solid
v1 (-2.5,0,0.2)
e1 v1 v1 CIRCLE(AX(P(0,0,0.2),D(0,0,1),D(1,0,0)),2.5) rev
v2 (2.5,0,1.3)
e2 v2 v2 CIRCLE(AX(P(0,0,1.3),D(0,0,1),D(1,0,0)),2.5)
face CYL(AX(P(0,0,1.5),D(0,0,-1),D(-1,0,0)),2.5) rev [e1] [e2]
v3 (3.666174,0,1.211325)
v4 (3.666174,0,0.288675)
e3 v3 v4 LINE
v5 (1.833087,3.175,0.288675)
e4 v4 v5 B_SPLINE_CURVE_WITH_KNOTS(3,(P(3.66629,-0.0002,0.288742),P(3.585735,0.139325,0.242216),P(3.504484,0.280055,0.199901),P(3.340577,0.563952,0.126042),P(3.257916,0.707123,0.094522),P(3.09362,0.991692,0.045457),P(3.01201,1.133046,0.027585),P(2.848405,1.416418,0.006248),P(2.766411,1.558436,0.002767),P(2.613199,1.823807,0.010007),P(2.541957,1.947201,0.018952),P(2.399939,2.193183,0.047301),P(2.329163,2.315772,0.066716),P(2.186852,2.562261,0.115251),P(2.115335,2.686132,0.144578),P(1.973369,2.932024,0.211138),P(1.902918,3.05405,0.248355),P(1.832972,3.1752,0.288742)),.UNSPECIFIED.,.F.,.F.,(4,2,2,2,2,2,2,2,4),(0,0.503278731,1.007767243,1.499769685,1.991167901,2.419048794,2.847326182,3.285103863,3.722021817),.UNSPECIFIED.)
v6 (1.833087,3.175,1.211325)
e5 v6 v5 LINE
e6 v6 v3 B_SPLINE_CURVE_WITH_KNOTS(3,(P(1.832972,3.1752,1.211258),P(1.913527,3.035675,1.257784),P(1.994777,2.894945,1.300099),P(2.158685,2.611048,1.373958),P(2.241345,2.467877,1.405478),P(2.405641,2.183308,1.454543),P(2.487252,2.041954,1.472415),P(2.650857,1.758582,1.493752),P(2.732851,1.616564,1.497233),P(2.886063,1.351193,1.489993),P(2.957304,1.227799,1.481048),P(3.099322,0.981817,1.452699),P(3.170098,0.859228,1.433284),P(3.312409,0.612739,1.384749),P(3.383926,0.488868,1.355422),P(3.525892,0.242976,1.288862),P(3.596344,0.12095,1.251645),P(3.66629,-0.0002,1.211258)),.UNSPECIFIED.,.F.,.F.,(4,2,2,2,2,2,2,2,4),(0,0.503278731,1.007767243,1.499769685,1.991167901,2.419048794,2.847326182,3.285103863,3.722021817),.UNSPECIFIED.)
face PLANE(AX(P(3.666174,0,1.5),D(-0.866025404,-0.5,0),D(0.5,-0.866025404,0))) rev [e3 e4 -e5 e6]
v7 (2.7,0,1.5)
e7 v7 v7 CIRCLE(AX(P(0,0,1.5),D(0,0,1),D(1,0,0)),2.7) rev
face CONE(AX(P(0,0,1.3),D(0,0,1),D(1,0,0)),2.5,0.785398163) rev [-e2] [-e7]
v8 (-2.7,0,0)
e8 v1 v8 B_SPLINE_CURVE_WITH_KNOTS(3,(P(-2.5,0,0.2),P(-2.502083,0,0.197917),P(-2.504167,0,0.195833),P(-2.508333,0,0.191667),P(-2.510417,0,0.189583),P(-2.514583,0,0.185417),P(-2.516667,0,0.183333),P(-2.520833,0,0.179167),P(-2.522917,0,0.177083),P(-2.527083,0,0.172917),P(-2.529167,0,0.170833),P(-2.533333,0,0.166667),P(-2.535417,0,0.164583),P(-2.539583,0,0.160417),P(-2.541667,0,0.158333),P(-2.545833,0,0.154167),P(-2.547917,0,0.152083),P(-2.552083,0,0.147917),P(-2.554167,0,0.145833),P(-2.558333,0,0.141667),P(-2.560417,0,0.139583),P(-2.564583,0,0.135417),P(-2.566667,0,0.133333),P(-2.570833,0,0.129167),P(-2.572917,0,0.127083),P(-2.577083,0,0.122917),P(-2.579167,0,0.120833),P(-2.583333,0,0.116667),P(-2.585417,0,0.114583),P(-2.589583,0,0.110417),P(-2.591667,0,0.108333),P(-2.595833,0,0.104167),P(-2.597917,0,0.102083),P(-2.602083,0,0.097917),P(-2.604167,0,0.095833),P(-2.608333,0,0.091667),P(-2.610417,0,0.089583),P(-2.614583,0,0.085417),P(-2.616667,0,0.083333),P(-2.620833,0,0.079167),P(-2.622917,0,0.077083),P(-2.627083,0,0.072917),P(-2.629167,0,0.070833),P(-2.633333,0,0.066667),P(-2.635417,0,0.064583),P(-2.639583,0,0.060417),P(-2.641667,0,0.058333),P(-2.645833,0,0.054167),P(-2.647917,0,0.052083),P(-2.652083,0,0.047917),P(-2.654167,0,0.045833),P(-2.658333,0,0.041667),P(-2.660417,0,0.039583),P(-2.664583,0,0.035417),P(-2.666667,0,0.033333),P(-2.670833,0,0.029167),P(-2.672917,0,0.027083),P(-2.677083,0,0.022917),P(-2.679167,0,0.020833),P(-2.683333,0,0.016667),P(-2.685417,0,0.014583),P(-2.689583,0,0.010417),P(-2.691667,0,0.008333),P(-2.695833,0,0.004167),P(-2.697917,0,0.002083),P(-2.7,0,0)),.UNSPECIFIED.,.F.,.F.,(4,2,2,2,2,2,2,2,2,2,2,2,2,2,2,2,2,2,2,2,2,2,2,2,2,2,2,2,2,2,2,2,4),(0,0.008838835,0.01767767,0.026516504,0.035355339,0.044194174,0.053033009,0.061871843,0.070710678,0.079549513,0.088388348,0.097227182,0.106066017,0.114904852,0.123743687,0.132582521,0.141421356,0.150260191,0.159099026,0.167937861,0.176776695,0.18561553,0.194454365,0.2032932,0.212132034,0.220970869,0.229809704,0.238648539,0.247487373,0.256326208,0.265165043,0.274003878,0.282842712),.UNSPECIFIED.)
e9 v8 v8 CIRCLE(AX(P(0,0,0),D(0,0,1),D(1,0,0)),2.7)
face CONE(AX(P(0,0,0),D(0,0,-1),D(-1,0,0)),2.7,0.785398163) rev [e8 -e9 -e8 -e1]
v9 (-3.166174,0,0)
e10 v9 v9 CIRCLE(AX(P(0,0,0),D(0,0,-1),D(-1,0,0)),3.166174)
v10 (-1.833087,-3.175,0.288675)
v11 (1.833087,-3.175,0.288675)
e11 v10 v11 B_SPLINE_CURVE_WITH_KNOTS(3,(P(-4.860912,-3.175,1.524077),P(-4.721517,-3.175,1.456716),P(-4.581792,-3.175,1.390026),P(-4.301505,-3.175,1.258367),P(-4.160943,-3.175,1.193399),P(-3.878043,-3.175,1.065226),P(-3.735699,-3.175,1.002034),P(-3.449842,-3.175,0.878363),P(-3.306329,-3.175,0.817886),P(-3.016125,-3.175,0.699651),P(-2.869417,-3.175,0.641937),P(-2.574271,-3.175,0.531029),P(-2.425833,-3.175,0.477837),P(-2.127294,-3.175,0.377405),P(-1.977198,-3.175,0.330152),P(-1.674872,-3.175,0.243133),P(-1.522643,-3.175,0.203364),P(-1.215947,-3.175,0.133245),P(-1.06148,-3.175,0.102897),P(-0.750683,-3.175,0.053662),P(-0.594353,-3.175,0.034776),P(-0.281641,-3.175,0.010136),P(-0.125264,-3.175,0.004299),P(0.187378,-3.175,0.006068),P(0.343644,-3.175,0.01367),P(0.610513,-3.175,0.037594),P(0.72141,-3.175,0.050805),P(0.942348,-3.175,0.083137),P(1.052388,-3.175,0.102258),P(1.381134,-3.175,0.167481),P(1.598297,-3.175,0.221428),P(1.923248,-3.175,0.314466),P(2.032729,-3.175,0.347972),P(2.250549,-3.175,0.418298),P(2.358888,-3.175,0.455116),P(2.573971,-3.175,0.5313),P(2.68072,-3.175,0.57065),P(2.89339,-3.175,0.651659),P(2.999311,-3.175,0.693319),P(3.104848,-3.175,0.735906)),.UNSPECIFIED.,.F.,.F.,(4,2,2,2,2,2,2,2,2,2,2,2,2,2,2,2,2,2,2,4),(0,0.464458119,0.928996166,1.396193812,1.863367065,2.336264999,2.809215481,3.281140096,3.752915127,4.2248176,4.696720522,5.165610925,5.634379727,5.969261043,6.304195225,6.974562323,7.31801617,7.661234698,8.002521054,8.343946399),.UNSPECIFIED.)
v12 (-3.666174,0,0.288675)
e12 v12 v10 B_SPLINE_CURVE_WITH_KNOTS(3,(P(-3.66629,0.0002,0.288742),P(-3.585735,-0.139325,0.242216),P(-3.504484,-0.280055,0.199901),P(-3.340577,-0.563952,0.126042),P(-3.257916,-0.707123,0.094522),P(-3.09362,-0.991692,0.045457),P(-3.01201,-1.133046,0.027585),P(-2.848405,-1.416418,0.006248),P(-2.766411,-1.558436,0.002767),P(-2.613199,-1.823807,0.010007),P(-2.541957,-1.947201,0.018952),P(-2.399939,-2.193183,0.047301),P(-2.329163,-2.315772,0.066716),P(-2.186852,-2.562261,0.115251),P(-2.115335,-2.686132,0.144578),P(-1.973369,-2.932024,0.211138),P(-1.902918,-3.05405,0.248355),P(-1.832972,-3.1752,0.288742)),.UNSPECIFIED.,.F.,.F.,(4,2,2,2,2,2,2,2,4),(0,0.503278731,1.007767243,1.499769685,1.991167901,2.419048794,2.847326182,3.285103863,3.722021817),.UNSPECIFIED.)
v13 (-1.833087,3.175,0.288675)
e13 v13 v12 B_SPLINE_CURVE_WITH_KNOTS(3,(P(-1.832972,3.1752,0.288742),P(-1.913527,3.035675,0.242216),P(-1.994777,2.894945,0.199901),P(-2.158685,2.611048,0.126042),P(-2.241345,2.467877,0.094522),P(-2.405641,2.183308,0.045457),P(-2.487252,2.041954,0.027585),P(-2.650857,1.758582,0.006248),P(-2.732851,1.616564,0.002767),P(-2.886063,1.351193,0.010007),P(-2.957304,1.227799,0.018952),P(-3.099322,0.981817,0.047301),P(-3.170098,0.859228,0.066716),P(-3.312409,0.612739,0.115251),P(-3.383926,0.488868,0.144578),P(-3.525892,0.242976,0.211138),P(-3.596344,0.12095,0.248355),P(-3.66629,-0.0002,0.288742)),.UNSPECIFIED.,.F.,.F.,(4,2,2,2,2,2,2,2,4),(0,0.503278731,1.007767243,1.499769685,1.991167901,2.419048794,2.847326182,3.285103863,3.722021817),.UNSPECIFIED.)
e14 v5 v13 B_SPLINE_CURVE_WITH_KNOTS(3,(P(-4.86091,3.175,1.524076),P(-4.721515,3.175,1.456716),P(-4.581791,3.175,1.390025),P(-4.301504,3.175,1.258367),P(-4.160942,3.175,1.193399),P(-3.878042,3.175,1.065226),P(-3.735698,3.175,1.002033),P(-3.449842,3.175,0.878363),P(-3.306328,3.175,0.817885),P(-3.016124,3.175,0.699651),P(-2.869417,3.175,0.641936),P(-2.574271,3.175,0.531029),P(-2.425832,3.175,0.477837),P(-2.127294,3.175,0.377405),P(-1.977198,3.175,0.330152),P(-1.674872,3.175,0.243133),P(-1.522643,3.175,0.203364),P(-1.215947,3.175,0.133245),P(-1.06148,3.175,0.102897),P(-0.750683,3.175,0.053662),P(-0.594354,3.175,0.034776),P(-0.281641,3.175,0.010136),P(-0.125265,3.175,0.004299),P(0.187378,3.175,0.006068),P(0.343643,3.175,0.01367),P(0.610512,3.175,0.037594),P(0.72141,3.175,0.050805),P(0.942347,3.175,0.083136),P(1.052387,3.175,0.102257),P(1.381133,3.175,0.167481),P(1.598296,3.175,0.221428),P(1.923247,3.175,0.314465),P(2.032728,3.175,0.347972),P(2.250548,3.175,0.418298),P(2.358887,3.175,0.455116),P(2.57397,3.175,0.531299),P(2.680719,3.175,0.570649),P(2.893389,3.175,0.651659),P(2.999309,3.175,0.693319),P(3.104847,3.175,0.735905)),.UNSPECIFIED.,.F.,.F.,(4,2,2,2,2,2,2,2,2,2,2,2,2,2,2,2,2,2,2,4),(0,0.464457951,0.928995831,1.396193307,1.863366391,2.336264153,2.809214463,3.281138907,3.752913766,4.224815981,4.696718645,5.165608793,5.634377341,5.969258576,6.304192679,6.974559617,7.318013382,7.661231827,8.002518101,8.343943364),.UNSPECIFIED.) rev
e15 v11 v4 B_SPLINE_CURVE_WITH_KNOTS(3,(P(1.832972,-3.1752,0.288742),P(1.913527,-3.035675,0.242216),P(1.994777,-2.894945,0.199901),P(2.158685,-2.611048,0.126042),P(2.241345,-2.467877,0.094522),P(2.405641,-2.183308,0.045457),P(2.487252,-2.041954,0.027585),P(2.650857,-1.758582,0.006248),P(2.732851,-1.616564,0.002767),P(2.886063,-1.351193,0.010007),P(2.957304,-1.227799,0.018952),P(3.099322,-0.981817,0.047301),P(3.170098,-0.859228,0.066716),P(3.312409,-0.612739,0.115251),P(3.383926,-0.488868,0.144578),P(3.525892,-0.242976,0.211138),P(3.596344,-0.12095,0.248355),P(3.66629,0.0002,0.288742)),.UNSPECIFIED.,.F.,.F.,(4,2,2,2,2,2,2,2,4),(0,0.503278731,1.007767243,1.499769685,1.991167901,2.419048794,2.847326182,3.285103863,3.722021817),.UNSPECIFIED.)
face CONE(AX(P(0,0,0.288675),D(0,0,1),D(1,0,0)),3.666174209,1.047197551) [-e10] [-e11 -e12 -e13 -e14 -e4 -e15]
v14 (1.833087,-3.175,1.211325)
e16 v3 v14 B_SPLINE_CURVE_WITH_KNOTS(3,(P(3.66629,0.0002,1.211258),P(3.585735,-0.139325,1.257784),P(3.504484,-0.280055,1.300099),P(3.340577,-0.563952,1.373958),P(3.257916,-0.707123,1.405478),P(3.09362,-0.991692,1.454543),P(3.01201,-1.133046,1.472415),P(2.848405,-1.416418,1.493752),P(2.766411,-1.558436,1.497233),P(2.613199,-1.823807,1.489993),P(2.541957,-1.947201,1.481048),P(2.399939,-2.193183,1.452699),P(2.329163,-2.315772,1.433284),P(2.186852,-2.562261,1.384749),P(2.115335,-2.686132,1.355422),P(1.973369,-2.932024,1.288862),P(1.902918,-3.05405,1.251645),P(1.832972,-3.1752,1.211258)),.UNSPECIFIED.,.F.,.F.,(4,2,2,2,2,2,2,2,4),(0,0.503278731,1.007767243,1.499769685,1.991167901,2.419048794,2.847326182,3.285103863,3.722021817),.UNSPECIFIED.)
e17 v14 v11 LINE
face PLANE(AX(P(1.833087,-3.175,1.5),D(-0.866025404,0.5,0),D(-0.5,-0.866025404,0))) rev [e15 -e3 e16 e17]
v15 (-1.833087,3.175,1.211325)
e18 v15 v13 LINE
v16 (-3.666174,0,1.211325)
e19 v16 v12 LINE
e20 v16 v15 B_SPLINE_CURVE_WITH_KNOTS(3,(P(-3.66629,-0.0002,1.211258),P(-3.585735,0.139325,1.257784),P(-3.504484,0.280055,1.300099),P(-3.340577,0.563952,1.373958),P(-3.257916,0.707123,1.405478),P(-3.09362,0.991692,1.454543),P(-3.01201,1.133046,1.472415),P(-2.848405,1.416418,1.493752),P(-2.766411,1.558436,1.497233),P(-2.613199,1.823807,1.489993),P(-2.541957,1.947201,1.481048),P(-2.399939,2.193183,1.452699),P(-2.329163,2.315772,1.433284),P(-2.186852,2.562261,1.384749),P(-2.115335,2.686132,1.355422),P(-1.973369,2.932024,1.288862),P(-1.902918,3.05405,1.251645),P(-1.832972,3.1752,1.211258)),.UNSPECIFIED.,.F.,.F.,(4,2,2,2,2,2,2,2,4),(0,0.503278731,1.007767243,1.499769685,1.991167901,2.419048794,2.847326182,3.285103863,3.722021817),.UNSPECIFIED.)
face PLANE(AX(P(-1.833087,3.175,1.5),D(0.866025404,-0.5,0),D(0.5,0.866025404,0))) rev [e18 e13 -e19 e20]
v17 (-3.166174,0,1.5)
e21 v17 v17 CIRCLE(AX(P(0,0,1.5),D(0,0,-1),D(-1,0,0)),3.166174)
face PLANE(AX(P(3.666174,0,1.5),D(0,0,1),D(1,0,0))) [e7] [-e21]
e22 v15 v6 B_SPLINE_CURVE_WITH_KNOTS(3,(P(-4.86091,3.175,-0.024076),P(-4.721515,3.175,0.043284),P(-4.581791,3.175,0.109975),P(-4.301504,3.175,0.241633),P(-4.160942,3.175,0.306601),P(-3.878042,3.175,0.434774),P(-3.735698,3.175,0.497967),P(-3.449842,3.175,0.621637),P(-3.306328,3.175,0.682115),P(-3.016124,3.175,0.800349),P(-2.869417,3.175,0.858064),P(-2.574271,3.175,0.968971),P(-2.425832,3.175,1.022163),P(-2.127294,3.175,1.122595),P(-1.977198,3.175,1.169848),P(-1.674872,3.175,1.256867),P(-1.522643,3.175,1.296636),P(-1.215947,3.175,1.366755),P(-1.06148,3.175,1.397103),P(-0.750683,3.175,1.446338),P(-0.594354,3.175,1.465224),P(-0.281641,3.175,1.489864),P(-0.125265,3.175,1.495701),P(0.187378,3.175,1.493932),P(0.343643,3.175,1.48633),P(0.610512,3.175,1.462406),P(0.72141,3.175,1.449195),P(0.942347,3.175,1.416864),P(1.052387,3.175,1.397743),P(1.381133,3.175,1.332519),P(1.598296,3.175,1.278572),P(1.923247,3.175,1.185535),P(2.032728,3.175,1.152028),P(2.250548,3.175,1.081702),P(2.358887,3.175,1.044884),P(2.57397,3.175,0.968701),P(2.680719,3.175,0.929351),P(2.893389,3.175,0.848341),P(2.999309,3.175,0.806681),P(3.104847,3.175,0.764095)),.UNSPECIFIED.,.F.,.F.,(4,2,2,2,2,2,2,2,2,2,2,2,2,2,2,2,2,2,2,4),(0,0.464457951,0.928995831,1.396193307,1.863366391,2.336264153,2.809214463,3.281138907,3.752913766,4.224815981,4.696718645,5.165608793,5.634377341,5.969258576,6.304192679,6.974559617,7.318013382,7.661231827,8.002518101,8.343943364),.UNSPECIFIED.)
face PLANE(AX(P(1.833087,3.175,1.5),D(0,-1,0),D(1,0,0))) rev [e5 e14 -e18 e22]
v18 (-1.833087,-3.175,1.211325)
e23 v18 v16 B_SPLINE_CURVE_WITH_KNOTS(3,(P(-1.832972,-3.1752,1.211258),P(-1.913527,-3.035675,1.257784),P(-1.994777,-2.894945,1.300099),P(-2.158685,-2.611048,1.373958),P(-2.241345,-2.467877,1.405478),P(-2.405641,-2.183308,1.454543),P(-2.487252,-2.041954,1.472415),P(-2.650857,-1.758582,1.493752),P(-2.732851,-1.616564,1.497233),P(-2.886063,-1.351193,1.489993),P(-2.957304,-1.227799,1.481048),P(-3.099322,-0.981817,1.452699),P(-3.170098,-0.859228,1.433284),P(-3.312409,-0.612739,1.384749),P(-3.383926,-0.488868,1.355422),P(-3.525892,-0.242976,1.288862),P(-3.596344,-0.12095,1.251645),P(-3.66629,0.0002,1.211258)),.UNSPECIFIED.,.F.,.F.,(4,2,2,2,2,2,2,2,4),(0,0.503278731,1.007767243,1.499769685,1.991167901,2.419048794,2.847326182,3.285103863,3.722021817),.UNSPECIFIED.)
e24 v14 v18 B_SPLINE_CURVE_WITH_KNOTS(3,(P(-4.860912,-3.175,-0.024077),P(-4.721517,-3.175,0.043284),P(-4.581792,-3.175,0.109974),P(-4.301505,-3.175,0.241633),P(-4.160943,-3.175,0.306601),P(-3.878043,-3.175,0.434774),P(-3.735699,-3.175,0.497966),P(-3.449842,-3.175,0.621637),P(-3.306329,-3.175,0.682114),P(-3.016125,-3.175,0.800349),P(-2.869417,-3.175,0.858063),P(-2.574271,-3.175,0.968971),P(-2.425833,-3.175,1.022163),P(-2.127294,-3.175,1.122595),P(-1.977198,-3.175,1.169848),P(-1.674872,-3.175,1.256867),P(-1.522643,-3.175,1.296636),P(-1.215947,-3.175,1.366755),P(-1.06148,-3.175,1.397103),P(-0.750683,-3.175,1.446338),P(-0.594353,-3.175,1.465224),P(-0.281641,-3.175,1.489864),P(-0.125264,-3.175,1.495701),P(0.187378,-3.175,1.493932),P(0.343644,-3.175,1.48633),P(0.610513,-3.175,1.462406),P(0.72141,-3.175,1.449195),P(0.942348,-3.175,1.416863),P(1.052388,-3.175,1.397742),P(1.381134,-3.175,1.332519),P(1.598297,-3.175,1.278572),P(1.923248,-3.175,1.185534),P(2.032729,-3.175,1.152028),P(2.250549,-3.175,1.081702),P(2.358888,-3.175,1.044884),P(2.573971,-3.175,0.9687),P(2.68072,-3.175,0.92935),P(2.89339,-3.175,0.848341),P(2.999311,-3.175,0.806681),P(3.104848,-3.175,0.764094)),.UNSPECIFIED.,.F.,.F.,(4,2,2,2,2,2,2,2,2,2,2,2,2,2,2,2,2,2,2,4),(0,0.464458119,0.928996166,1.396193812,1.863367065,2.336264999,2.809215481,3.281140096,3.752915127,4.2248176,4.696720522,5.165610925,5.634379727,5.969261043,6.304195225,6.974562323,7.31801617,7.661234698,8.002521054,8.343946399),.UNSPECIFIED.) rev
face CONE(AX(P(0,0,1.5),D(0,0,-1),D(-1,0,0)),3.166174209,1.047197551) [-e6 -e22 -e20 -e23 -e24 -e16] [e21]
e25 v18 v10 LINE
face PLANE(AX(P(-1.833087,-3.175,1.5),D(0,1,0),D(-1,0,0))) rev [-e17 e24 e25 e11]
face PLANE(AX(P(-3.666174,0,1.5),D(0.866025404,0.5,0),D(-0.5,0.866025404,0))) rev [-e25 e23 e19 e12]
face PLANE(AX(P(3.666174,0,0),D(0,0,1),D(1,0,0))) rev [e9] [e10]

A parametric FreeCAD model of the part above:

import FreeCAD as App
import Part
import Sketcher
Q = App.Units.Quantity


def edges_at(feature, points):
    """Names of the edges that pass closest to the given points."""
    edges = feature.Shape.Edges
    near = lambda p: min(range(len(edges)), key=lambda i: edges[i].distToShape(Part.Vertex(*p))[0])
    return sorted({f"Edge{near(p) + 1}" for p in points})


def add_polygon(sketch, points):
    """Adds a closed chain of lines whose ends are joined by coincident constraints."""
    first, n = sketch.GeometryCount, len(points)
    for a, b in zip(points, points[1:] + points[:1]):
        sketch.addGeometry(Part.LineSegment(App.Vector(*a, 0), App.Vector(*b, 0)), False)
    for i in range(n):
        sketch.addConstraint(Sketcher.Constraint("Coincident", first + i, 2, first + (i + 1) % n, 1))

doc = App.newDocument("Part")
body = doc.addObject("PartDesign::Body", "Body")

sketch1 = body.newObject("Sketcher::SketchObject", "Sketch")
sketch1.AttachmentSupport = (doc.getObject("XY_Plane"), [""])
sketch1.MapMode = "FlatFace"
add_polygon(sketch1, [(3.7, 0), (1.8, 3.2), (-1.8, 3.2), (-3.7, 0), (-1.8, -3.2), (1.8, -3.2)])
sketch1.addGeometry(Part.Circle(App.Vector(0, 0, 0), App.Vector(0, 0, 1), 2.5), False)
sketch1.addConstraint(Sketcher.Constraint("Horizontal", 1))
sketch1.addConstraint(Sketcher.Constraint("Horizontal", 4))
sketch1.addConstraint(Sketcher.Constraint("Coincident", 6, 3, -1, 1))
sketch1.addConstraint(Sketcher.Constraint("Symmetric", 0, 2, 3, 2, -1, 1))
sketch1.addConstraint(Sketcher.Constraint("Symmetric", 2, 2, 5, 2, -1, 1))
sketch1.addConstraint(Sketcher.Constraint("PointOnObject", 2, 2, -1))
sketch1.addConstraint(Sketcher.Constraint("Parallel", 2, 5))
sketch1.addConstraint(Sketcher.Constraint("Vertical", 1, 2, 3, 2))
sketch1.addConstraint(Sketcher.Constraint("Diameter", 6, Q("5 mm")))
sketch1.addConstraint(Sketcher.Constraint("Angle", 0, Q("120 deg")))
sketch1.addConstraint(Sketcher.Constraint("DistanceY", 3, 2, 1, 2, Q("6.35 mm")))
sketch1.addConstraint(Sketcher.Constraint("DistanceX", 1, 2, 1, 1, Q("3.666174 mm")))
pad1 = body.newObject("PartDesign::Pad", "Pad")
pad1.Profile = sketch1
pad1.Length = 1.5

sketch2 = body.newObject("Sketcher::SketchObject", "Sketch001")
sketch2.AttachmentSupport = (doc.getObject("XZ_Plane"), [""])
sketch2.MapMode = "FlatFace"
add_polygon(sketch2, [(-3.7, 0.3), (-3.2, 0), (-4.7, 0), (-4.7, 1.5), (-3.2, 1.5), (-3.7, 1.2)])
sketch2.addConstraint(Sketcher.Constraint("Horizontal", 1))
sketch2.addConstraint(Sketcher.Constraint("Vertical", 2))
sketch2.addConstraint(Sketcher.Constraint("Horizontal", 3))
sketch2.addConstraint(Sketcher.Constraint("Vertical", 5))
sketch2.addConstraint(Sketcher.Constraint("PointOnObject", 0, 2, -1))
sketch2.addConstraint(Sketcher.Constraint("Vertical", 0, 2, 3, 2))
sketch2.addConstraint(Sketcher.Constraint("Equal", 3, 2))
sketch2.addConstraint(Sketcher.Constraint("Equal", 0, 4))
sketch2.addConstraint(Sketcher.Constraint("Angle", 0, Q("-30 deg")))
sketch2.addConstraint(Sketcher.Constraint("DistanceX", 1, 2, 1, 1, Q("1.5 mm")))
sketch2.addConstraint(Sketcher.Constraint("DistanceX", 2, 2, 4, 2, Q("1 mm")))
sketch2.addConstraint(Sketcher.Constraint("DistanceX", 0, 2, -1, 1, Q("3.166174 mm")))
groove = body.newObject("PartDesign::Groove", "Groove")
groove.Profile = sketch2
groove.ReferenceAxis = (sketch2, ["V_Axis"])
groove.Angle = 360
doc.recompute()

chamfer = body.newObject("PartDesign::Chamfer", "Chamfer")
chamfer.Base = (groove, edges_at(groove, [(-2.5, 0, 0), (-2.5, 0, 1.5)]))
chamfer.Size = 0.2

doc.recompute()
